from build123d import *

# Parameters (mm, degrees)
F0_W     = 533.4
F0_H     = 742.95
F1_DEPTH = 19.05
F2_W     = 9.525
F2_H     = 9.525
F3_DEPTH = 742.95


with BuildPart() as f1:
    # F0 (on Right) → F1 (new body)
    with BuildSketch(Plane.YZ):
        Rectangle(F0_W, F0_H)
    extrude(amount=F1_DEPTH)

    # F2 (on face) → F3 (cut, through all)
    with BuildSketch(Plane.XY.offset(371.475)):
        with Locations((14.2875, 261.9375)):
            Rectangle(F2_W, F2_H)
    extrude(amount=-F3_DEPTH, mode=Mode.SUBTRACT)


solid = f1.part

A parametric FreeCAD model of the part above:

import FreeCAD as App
import Part
import Sketcher
from FreeCAD import Vector
Q = App.Units.Quantity

doc = App.newDocument("Part")
body = doc.addObject("PartDesign::Body", "Body")

# Sketch on YZ plane
sketch1 = body.newObject("Sketcher::SketchObject", "Sketch")
sketch1.AttachmentSupport = (doc.getObject("YZ_Plane"), [""])
sketch1.MapMode = "FlatFace"
sketch1.addGeometry(Part.LineSegment(Vector(-267, 371, 0), Vector(-267, -371, 0)), False)
sketch1.addGeometry(Part.LineSegment(Vector(-267, -371, 0), Vector(267, -371, 0)), False)
sketch1.addGeometry(Part.LineSegment(Vector(267, -371, 0), Vector(267, 371, 0)), False)
sketch1.addGeometry(Part.LineSegment(Vector(267, 371, 0), Vector(-267, 371, 0)), False)
sketch1.addConstraint(Sketcher.Constraint("Coincident", 0, 2, 1, 1))
sketch1.addConstraint(Sketcher.Constraint("Coincident", 1, 2, 2, 1))
sketch1.addConstraint(Sketcher.Constraint("Coincident", 2, 2, 3, 1))
sketch1.addConstraint(Sketcher.Constraint("Coincident", 3, 2, 0, 1))
sketch1.addConstraint(Sketcher.Constraint("Vertical", 0))
sketch1.addConstraint(Sketcher.Constraint("Horizontal", 1))
sketch1.addConstraint(Sketcher.Constraint("Vertical", 2))
sketch1.addConstraint(Sketcher.Constraint("Horizontal", 3))
sketch1.addConstraint(Sketcher.Constraint("Symmetric", 0, 2, 2, 2, -1, 1))
sketch1.addConstraint(Sketcher.Constraint("DistanceX", 1, 1, 1, 2, Q("21 in")))
sketch1.addConstraint(Sketcher.Constraint("DistanceY", 0, 2, 0, 1, Q("29.25 in")))
pad1 = body.newObject("PartDesign::Pad", "Pad")
pad1.Profile = sketch1
pad1.Length = Q("0.75 in")

# Sketch on XY plane
sketch2 = body.newObject("Sketcher::SketchObject", "Sketch001")
sketch2.AttachmentSupport = (doc.getObject("XY_Plane"), [""])
sketch2.MapMode = "FlatFace"
sketch2.AttachmentOffset = App.Placement(Vector(0, 0, 14.625 * 25.4), App.Rotation())
sketch2.addGeometry(Part.LineSegment(Vector(10, 267, 0), Vector(10, 257, 0)), False)
sketch2.addGeometry(Part.LineSegment(Vector(10, 257, 0), Vector(19, 257, 0)), False)
sketch2.addGeometry(Part.LineSegment(Vector(19, 257, 0), Vector(19, 267, 0)), False)
sketch2.addGeometry(Part.LineSegment(Vector(19, 267, 0), Vector(10, 267, 0)), False)
sketch2.addConstraint(Sketcher.Constraint("Coincident", 0, 2, 1, 1))
sketch2.addConstraint(Sketcher.Constraint("Coincident", 1, 2, 2, 1))
sketch2.addConstraint(Sketcher.Constraint("Coincident", 2, 2, 3, 1))
sketch2.addConstraint(Sketcher.Constraint("Coincident", 3, 2, 0, 1))
sketch2.addConstraint(Sketcher.Constraint("Vertical", 0))
sketch2.addConstraint(Sketcher.Constraint("Horizontal", 1))
sketch2.addConstraint(Sketcher.Constraint("Vertical", 2))
sketch2.addConstraint(Sketcher.Constraint("Horizontal", 3))
sketch2.addConstraint(Sketcher.Constraint("Equal", 3, 0))
sketch2.addConstraint(Sketcher.Constraint("DistanceY", -1, 1, 2, 2, Q("10.5 in")))
sketch2.addConstraint(Sketcher.Constraint("DistanceX", 1, 1, 1, 2, Q("0.375 in")))
sketch2.addConstraint(Sketcher.Constraint("DistanceX", -1, 1, 1, 2, Q("0.75 in")))
pocket1 = body.newObject("PartDesign::Pocket", "Pocket")
pocket1.Profile = sketch2
pocket1.Type = "ThroughAll"

doc.recompute()
